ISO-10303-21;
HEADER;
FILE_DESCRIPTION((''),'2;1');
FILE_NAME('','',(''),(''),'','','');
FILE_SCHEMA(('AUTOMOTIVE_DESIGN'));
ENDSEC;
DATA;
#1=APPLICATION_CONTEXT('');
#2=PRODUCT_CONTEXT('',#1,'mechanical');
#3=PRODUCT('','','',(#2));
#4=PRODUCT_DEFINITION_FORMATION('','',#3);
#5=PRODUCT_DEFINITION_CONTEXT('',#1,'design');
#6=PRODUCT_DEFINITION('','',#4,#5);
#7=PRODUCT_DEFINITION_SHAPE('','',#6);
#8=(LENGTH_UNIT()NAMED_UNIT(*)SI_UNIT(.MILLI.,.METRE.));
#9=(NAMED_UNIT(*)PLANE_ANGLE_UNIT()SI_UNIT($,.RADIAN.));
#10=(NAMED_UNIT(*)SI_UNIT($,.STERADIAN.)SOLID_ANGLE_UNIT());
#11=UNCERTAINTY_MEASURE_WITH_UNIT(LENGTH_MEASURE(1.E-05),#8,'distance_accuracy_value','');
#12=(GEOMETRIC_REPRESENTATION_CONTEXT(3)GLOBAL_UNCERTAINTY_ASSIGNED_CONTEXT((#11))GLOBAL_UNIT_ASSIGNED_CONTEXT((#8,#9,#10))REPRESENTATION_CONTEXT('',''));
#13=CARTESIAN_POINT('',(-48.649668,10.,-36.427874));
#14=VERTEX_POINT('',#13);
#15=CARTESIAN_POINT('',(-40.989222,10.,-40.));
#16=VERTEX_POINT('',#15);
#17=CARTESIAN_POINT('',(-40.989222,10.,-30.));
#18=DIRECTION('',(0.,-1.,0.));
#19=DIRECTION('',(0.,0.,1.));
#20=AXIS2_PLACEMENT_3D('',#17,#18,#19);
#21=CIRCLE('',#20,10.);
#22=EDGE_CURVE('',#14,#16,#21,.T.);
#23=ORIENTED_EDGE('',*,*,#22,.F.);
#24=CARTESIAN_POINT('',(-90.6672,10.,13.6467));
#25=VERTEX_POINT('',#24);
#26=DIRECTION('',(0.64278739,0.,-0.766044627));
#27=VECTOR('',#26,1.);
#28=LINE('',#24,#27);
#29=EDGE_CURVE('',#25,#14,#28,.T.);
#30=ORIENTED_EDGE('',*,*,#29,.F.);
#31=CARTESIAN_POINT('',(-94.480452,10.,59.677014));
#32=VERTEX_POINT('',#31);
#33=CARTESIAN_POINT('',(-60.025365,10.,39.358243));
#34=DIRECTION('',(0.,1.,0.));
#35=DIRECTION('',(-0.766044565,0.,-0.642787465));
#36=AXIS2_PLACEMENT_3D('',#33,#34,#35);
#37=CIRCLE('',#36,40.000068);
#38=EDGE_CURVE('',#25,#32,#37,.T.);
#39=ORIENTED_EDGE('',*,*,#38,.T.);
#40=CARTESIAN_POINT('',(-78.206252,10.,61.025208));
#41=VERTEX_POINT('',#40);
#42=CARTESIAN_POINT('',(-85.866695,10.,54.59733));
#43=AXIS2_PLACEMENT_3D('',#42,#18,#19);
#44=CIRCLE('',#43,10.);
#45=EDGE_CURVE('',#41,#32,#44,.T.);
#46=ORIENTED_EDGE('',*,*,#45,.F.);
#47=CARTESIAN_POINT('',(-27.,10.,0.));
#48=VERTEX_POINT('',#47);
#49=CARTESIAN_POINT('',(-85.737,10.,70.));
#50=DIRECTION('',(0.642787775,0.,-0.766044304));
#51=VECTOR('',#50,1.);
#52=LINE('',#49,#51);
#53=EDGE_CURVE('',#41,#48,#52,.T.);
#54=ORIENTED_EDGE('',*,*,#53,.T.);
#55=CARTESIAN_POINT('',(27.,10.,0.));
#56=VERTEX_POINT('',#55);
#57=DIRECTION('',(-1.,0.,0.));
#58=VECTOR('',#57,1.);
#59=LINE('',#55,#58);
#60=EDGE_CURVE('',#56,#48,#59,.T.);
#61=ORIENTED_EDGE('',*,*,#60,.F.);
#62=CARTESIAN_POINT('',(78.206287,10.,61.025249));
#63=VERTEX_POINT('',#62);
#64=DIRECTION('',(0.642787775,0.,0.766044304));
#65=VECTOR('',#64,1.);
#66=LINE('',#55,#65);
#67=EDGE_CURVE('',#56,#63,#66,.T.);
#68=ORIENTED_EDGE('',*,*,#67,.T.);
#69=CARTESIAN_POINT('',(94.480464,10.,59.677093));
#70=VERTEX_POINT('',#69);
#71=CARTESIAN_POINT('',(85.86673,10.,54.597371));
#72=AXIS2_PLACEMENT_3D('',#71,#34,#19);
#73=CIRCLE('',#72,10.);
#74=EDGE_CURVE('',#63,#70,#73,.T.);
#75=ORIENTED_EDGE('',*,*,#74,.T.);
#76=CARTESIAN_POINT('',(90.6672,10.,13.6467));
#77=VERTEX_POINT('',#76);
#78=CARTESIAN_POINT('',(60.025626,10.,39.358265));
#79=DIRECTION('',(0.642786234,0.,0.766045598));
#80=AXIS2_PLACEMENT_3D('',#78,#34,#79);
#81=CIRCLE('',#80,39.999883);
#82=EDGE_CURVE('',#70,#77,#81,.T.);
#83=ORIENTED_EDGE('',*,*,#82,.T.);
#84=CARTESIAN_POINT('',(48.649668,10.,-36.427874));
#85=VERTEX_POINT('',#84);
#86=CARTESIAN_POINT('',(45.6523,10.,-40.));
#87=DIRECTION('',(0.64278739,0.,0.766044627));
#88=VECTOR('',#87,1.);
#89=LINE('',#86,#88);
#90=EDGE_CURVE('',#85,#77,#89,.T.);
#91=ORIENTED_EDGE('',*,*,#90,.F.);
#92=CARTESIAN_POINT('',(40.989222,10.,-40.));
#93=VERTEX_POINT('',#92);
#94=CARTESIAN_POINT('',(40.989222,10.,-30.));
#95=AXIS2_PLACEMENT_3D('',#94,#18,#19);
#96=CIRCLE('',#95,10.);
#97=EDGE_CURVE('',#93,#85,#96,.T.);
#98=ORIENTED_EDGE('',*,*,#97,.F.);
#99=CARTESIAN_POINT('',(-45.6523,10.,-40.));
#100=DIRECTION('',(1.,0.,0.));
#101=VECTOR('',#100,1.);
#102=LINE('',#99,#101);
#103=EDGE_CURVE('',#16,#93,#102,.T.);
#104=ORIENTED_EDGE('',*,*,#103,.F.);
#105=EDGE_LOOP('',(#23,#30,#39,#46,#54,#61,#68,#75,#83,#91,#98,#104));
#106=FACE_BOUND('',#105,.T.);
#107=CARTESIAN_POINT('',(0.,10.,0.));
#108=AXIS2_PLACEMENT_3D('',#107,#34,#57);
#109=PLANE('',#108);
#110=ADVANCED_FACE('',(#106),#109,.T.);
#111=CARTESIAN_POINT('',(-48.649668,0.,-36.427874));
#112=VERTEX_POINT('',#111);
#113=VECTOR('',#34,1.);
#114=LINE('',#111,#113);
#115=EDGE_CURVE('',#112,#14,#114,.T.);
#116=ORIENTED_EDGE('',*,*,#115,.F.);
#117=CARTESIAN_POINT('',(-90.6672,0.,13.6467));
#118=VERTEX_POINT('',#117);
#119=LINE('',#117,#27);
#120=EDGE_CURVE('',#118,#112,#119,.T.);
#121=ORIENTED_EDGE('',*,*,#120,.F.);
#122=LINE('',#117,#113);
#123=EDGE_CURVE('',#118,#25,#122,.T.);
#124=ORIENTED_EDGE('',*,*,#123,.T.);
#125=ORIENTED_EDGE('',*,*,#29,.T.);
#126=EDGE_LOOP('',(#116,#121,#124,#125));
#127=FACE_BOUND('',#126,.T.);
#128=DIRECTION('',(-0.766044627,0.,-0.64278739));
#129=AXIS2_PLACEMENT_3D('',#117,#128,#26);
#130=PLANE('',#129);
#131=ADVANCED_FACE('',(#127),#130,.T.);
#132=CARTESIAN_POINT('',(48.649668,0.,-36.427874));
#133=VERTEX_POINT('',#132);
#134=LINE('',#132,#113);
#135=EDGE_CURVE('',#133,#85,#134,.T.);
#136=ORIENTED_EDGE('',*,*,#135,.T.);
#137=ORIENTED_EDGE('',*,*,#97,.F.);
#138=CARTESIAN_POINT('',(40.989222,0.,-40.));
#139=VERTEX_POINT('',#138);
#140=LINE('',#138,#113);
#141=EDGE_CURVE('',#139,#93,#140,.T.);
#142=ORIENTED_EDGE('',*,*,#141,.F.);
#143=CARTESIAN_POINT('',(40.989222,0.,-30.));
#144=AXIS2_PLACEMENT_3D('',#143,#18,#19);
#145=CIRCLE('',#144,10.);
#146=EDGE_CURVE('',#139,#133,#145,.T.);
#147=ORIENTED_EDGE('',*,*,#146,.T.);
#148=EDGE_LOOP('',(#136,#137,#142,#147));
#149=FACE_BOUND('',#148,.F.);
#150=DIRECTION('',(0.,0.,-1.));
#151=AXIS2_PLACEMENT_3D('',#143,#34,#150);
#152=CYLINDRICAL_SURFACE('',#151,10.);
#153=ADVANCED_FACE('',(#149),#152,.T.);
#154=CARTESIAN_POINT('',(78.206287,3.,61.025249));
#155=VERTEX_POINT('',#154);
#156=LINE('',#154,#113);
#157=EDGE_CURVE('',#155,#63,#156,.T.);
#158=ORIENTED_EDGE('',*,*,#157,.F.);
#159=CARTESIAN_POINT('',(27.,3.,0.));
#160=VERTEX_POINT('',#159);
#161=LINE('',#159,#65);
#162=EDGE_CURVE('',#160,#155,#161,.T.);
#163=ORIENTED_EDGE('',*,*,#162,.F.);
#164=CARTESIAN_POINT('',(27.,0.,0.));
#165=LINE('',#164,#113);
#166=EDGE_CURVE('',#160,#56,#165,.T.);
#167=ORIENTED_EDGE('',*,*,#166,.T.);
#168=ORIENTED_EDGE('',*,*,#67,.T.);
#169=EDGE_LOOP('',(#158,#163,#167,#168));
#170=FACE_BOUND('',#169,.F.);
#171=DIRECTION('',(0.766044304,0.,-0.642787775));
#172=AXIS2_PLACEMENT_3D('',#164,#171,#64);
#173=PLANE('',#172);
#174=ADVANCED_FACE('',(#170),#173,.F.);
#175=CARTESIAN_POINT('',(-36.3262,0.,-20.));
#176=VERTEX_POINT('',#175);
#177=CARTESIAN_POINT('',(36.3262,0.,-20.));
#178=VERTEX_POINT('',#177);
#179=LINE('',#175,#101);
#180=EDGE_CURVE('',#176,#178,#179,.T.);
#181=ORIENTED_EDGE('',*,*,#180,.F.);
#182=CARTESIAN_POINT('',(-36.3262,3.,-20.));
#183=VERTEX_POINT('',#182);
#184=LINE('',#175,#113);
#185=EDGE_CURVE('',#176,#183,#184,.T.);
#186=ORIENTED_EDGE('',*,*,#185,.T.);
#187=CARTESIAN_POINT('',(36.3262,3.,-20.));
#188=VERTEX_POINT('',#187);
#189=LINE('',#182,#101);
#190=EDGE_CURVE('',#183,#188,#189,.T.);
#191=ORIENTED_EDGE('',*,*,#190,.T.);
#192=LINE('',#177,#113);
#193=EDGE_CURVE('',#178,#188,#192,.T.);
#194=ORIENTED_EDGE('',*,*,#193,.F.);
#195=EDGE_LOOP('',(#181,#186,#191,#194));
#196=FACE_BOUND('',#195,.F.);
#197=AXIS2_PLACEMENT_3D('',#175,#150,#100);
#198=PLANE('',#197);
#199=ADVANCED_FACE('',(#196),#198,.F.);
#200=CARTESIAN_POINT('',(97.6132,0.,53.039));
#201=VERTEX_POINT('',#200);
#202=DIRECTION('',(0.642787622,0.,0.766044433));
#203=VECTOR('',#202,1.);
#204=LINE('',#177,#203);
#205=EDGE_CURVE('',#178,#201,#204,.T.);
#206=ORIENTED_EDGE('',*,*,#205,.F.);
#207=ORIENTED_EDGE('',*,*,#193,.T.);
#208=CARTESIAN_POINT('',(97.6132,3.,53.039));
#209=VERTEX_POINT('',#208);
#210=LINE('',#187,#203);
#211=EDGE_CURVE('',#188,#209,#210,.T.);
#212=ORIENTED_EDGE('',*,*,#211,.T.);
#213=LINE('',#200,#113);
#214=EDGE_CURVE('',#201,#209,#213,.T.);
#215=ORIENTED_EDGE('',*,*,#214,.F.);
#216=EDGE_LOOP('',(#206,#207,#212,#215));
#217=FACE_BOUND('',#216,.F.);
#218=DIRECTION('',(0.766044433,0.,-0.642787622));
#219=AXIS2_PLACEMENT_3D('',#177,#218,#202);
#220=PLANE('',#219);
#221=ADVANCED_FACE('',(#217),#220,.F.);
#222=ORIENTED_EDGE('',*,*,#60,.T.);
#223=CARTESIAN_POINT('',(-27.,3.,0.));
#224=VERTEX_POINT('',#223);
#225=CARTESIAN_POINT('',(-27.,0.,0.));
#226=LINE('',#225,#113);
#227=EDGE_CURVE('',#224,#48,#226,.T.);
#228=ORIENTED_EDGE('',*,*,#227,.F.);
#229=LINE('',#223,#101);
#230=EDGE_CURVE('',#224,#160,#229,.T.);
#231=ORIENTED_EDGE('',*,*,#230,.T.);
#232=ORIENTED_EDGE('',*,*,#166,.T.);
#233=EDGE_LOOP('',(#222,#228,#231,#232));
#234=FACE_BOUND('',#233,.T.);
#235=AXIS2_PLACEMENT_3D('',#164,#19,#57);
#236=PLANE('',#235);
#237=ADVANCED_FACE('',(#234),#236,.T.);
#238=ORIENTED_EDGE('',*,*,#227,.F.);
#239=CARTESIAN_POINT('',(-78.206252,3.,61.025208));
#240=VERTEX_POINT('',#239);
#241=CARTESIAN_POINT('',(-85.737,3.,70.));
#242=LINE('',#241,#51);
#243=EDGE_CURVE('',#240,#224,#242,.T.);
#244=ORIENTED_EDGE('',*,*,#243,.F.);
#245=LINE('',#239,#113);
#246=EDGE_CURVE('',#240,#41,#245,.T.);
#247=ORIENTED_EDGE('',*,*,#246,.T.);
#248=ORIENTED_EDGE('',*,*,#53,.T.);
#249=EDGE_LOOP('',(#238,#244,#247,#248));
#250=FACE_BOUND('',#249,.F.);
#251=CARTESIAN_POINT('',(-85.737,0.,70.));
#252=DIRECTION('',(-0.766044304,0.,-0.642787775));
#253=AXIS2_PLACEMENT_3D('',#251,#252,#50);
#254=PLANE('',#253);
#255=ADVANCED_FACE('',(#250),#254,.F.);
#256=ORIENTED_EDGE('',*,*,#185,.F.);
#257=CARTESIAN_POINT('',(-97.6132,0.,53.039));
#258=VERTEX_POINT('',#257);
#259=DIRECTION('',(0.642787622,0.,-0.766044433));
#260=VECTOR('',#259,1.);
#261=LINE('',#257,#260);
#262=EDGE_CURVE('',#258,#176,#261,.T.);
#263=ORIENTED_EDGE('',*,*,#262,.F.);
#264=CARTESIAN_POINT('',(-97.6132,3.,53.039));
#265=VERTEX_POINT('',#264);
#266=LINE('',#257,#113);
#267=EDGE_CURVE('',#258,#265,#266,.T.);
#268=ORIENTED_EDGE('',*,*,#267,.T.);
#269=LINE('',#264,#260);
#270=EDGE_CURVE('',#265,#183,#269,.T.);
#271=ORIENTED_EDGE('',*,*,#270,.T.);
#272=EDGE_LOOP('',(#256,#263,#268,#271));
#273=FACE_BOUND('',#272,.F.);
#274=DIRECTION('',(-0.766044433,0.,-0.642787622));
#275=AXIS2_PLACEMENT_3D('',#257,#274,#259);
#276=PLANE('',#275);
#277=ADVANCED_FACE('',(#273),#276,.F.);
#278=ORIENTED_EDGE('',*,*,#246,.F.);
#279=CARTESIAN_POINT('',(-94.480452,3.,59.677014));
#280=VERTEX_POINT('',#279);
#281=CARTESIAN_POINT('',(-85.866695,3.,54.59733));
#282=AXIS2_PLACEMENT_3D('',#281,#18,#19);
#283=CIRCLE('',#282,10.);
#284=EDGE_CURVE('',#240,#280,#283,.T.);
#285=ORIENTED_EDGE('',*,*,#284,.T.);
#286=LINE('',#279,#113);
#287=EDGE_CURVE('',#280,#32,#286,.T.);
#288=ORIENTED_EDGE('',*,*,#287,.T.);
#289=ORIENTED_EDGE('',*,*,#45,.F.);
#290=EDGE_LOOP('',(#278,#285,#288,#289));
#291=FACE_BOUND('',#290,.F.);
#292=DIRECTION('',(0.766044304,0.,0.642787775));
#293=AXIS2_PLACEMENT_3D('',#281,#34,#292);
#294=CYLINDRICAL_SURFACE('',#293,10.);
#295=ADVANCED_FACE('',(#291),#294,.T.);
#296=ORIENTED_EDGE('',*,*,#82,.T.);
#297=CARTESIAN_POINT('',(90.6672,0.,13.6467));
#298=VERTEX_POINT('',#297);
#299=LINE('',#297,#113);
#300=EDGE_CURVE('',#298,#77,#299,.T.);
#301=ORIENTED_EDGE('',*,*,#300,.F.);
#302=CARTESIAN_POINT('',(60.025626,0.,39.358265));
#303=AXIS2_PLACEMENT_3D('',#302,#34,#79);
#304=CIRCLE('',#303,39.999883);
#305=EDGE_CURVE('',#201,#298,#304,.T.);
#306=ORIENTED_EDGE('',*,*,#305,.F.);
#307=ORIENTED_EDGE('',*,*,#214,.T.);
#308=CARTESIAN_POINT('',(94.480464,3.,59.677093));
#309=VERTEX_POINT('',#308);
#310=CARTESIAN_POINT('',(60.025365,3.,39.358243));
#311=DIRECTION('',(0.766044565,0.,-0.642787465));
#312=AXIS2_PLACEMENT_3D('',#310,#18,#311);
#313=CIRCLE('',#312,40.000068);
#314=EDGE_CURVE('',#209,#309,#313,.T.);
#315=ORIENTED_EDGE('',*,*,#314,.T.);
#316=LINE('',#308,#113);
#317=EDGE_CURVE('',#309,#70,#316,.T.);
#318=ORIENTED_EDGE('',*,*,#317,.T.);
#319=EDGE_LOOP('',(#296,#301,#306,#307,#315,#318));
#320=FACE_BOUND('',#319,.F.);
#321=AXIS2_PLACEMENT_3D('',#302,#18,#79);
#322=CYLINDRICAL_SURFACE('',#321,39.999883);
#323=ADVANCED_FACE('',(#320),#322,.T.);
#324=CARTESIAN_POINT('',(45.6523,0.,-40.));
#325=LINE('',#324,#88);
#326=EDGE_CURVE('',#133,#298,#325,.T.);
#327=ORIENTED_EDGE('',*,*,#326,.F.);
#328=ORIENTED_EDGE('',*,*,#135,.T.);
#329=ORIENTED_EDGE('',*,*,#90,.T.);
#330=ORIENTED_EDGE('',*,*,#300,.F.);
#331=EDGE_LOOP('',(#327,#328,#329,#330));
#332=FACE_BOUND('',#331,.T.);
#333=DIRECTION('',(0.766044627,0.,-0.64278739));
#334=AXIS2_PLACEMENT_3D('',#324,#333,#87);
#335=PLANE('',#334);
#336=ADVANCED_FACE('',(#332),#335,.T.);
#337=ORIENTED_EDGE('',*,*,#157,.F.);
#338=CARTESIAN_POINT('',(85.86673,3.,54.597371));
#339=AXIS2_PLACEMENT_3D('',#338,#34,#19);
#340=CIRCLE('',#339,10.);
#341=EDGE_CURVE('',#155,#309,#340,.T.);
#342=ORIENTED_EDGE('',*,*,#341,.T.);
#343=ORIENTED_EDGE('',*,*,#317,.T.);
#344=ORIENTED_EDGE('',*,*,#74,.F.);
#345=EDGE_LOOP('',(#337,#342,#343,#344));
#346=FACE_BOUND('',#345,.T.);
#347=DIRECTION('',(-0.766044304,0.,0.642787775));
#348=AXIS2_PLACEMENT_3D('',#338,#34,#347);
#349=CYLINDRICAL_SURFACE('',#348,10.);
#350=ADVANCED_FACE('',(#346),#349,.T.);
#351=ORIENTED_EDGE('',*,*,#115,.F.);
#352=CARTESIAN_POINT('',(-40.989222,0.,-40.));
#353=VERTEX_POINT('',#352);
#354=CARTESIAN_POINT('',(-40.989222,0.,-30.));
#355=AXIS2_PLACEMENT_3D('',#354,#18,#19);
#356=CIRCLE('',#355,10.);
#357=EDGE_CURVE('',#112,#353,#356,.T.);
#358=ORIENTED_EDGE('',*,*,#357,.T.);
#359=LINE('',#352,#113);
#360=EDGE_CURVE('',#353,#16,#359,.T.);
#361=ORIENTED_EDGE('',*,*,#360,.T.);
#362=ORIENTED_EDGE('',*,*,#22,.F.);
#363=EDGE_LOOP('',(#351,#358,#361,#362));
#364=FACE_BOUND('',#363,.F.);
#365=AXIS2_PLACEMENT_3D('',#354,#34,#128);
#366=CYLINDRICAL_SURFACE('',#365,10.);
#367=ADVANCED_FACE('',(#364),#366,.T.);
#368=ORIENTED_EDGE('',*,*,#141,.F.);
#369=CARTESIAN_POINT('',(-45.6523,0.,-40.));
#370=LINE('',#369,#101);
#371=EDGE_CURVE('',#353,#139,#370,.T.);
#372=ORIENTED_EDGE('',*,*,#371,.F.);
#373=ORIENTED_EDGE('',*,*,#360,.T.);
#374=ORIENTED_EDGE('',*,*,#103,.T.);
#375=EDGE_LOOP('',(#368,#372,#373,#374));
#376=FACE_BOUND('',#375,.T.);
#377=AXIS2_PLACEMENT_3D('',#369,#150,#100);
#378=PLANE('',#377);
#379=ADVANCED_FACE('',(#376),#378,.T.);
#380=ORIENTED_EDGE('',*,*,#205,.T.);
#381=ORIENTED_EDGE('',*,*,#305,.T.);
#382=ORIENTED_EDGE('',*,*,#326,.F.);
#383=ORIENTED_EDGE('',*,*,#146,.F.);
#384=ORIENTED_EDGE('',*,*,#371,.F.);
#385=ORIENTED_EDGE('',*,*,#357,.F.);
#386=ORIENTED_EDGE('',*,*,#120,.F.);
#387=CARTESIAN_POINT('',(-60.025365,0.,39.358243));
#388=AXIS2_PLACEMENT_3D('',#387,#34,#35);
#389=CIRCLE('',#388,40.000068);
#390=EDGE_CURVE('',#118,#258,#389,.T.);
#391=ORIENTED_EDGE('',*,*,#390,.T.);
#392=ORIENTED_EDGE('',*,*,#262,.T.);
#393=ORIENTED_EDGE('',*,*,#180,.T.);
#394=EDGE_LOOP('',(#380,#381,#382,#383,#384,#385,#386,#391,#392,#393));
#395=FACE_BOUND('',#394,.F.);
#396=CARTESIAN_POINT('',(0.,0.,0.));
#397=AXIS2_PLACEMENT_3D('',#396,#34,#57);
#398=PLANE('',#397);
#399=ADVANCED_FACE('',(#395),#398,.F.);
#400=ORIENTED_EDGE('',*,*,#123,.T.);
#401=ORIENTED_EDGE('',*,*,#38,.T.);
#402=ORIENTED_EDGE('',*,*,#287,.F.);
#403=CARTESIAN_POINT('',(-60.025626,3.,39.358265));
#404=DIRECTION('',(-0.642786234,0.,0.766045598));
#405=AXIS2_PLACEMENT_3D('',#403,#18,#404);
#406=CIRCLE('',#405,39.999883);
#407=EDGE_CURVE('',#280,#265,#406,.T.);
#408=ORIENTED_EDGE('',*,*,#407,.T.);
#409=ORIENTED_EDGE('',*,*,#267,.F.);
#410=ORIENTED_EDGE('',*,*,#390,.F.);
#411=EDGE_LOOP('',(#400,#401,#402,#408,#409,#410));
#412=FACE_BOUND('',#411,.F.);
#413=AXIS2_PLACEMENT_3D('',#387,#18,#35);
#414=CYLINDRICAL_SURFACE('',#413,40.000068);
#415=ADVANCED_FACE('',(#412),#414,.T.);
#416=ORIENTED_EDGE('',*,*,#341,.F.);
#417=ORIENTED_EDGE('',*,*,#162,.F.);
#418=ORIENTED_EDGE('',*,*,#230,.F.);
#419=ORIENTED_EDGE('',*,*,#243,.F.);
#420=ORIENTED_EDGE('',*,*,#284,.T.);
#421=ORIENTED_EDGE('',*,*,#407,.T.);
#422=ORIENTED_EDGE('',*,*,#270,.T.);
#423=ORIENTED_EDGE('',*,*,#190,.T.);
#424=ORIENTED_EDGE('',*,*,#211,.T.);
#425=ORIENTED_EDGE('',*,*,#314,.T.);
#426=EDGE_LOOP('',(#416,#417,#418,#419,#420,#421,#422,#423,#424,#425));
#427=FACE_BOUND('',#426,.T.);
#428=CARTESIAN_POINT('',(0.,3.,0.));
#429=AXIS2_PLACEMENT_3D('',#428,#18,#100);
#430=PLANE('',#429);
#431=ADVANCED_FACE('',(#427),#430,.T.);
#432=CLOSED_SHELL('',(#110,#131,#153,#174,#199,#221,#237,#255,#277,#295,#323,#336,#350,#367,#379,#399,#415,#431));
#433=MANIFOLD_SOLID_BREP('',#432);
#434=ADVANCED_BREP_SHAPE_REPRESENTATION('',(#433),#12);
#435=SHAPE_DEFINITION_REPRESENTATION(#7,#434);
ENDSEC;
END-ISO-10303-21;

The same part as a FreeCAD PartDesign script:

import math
import FreeCAD as App
import Part
import Sketcher
Q = App.Units.Quantity


def edges_at(feature, points):
    """Names of the edges that pass closest to the given points."""
    edges = feature.Shape.Edges
    near = lambda p: min(range(len(edges)), key=lambda i: edges[i].distToShape(Part.Vertex(*p))[0])
    return sorted({f"Edge{near(p) + 1}" for p in points})

doc = App.newDocument("Part")
body = doc.addObject("PartDesign::Body", "Body")

sketch1 = body.newObject("Sketcher::SketchObject", "Sketch")
sketch1.AttachmentSupport = (doc.getObject("XZ_Plane"), [""])
sketch1.MapMode = "FlatFace"
sketch1.addGeometry(Part.LineSegment(App.Vector(-27, 0, 0), App.Vector(27, 0, 0)), False)
sketch1.addGeometry(Part.LineSegment(App.Vector(27, 0, 0), App.Vector(85.737, 70, 0)), False)
sketch1.addGeometry(Part.ArcOfCircle(Part.Circle(App.Vector(60.0255, 39.3582, 0), App.Vector(0, 0, 1), 40.000014), math.radians(-40.000067), math.radians(50.000025)), False)
sketch1.addGeometry(Part.LineSegment(App.Vector(90.6672, 13.6467, 0), App.Vector(45.6523, -40, 0)), False)
sketch1.addGeometry(Part.LineSegment(App.Vector(45.6523, -40, 0), App.Vector(-45.6523, -40, 0)), False)
sketch1.addGeometry(Part.LineSegment(App.Vector(-45.6523, -40, 0), App.Vector(-90.6672, 13.6467, 0)), False)
sketch1.addGeometry(Part.ArcOfCircle(Part.Circle(App.Vector(-60.0255, 39.3582, 0), App.Vector(0, 0, 1), 39.999938), math.radians(129.999975), math.radians(220.000067)), False)
sketch1.addGeometry(Part.LineSegment(App.Vector(-85.737, 70, 0), App.Vector(-27, 0, 0)), False)
sketch1.addConstraint(Sketcher.Constraint("Coincident", 0, 2, 1, 1))
sketch1.addConstraint(Sketcher.Constraint("Coincident", 1, 2, 2, 2))
sketch1.addConstraint(Sketcher.Constraint("Tangent", 2, 1, 3, 1))
sketch1.addConstraint(Sketcher.Constraint("Coincident", 3, 2, 4, 1))
sketch1.addConstraint(Sketcher.Constraint("Coincident", 4, 2, 5, 1))
sketch1.addConstraint(Sketcher.Constraint("Tangent", 5, 2, 6, 2))
sketch1.addConstraint(Sketcher.Constraint("Coincident", 6, 1, 7, 1))
sketch1.addConstraint(Sketcher.Constraint("Coincident", 7, 2, 0, 1))
sketch1.addConstraint(Sketcher.Constraint("Horizontal", 0))
sketch1.addConstraint(Sketcher.Constraint("Horizontal", 4))
sketch1.addConstraint(Sketcher.Constraint("Equal", 2, 6))
sketch1.addConstraint(Sketcher.Constraint("Symmetric", 0, 2, 7, 2, -1, 1))
sketch1.addConstraint(Sketcher.Constraint("Symmetric", 2, 3, 6, 3, -2))
sketch1.addConstraint(Sketcher.Constraint("Parallel", 1, 3))
sketch1.addConstraint(Sketcher.Constraint("Parallel", 5, 7))
sketch1.addConstraint(Sketcher.Constraint("Horizontal", 2, 1, 5, 2))
sketch1.addConstraint(Sketcher.Constraint("Radius", 2, Q("40 mm")))
sketch1.addConstraint(Sketcher.Constraint("DistanceX", 0, 1, 0, 2, Q("54 mm")))
sketch1.addConstraint(Sketcher.Constraint("Angle", 3, Q("-130 deg")))
sketch1.addConstraint(Sketcher.Constraint("DistanceY", -1, 1, 1, 2, Q("70 mm")))
sketch1.addConstraint(Sketcher.Constraint("DistanceY", 3, 2, -1, 1, Q("40 mm")))
sketch1.addConstraint(Sketcher.Constraint("DistanceX", 4, 2, 4, 1, Q("91.3046 mm")))
pad1 = body.newObject("PartDesign::Pad", "Pad")
pad1.Profile = sketch1
pad1.Length = 10
pad1.Reversed = True

sketch2 = body.newObject("Sketcher::SketchObject", "Sketch001")
sketch2.AttachmentSupport = (doc.getObject("XZ_Plane"), [""])
sketch2.MapMode = "FlatFace"
sketch2.addGeometry(Part.LineSegment(App.Vector(27, 0, 0), App.Vector(-27, 0, 0)), False)
sketch2.addGeometry(Part.LineSegment(App.Vector(-27, 0, 0), App.Vector(-85.737, 70, 0)), False)
sketch2.addGeometry(Part.ArcOfCircle(Part.Circle(App.Vector(-60.0255, 39.3582, 0), App.Vector(0, 0, 1), 40.000014), math.radians(129.999975), math.radians(160.000005)), False)
sketch2.addGeometry(Part.LineSegment(App.Vector(-97.6132, 53.039, 0), App.Vector(-36.3262, -20, 0)), False)
sketch2.addGeometry(Part.LineSegment(App.Vector(-36.3262, -20, 0), App.Vector(36.3262, -20, 0)), False)
sketch2.addGeometry(Part.LineSegment(App.Vector(36.3262, -20, 0), App.Vector(97.6132, 53.039, 0)), False)
sketch2.addGeometry(Part.ArcOfCircle(Part.Circle(App.Vector(60.0255, 39.3582, 0), App.Vector(0, 0, 1), 39.999938), math.radians(19.999995), math.radians(50.000025)), False)
sketch2.addGeometry(Part.LineSegment(App.Vector(85.737, 70, 0), App.Vector(27, 0, 0)), False)
sketch2.addConstraint(Sketcher.Constraint("Coincident", 0, 2, 1, 1))
sketch2.addConstraint(Sketcher.Constraint("Coincident", 1, 2, 2, 1))
sketch2.addConstraint(Sketcher.Constraint("Coincident", 2, 2, 3, 1))
sketch2.addConstraint(Sketcher.Constraint("Coincident", 3, 2, 4, 1))
sketch2.addConstraint(Sketcher.Constraint("Coincident", 4, 2, 5, 1))
sketch2.addConstraint(Sketcher.Constraint("Coincident", 5, 2, 6, 1))
sketch2.addConstraint(Sketcher.Constraint("Coincident", 6, 2, 7, 1))
sketch2.addConstraint(Sketcher.Constraint("Coincident", 7, 2, 0, 1))
sketch2.addConstraint(Sketcher.Constraint("Horizontal", 0))
sketch2.addConstraint(Sketcher.Constraint("Horizontal", 4))
sketch2.addConstraint(Sketcher.Constraint("Equal", 2, 6))
sketch2.addConstraint(Sketcher.Constraint("Symmetric", 0, 2, 7, 2, -1, 1))
sketch2.addConstraint(Sketcher.Constraint("Symmetric", 2, 3, 6, 3, -2))
sketch2.addConstraint(Sketcher.Constraint("Parallel", 1, 3))
sketch2.addConstraint(Sketcher.Constraint("Parallel", 5, 7))
sketch2.addConstraint(Sketcher.Constraint("Horizontal", 2, 2, 5, 2))
sketch2.addConstraint(Sketcher.Constraint("Horizontal", 1, 2, 6, 2))
sketch2.addConstraint(Sketcher.Constraint("DistanceY", 3, 2, -1, 1, Q("20 mm")))
sketch2.addConstraint(Sketcher.Constraint("Radius", 2, Q("40 mm")))
sketch2.addConstraint(Sketcher.Constraint("DistanceX", 0, 2, 0, 1, Q("54 mm")))
sketch2.addConstraint(Sketcher.Constraint("Angle", 1, Q("130 deg")))
sketch2.addConstraint(Sketcher.Constraint("DistanceY", -1, 1, 1, 2, Q("70 mm")))
sketch2.addConstraint(Sketcher.Constraint("DistanceX", 4, 1, 4, 2, Q("72.6524 mm")))
sketch2.addConstraint(Sketcher.Constraint("DistanceY", -1, 1, 2, 2, Q("53.039 mm")))
pocket1 = body.newObject("PartDesign::Pocket", "Pocket")
pocket1.Profile = sketch2
pocket1.Length = 3
doc.recompute()

fillet = body.newObject("PartDesign::Fillet", "Fillet")
fillet.Base = (pocket1, edges_at(pocket1, [
    (-85.737, 6.5, 70),
    (85.737, 6.5, 70),
    (-45.652, 5, -40),
    (45.652, 5, -40),
]))
fillet.Radius = 10

doc.recompute()
